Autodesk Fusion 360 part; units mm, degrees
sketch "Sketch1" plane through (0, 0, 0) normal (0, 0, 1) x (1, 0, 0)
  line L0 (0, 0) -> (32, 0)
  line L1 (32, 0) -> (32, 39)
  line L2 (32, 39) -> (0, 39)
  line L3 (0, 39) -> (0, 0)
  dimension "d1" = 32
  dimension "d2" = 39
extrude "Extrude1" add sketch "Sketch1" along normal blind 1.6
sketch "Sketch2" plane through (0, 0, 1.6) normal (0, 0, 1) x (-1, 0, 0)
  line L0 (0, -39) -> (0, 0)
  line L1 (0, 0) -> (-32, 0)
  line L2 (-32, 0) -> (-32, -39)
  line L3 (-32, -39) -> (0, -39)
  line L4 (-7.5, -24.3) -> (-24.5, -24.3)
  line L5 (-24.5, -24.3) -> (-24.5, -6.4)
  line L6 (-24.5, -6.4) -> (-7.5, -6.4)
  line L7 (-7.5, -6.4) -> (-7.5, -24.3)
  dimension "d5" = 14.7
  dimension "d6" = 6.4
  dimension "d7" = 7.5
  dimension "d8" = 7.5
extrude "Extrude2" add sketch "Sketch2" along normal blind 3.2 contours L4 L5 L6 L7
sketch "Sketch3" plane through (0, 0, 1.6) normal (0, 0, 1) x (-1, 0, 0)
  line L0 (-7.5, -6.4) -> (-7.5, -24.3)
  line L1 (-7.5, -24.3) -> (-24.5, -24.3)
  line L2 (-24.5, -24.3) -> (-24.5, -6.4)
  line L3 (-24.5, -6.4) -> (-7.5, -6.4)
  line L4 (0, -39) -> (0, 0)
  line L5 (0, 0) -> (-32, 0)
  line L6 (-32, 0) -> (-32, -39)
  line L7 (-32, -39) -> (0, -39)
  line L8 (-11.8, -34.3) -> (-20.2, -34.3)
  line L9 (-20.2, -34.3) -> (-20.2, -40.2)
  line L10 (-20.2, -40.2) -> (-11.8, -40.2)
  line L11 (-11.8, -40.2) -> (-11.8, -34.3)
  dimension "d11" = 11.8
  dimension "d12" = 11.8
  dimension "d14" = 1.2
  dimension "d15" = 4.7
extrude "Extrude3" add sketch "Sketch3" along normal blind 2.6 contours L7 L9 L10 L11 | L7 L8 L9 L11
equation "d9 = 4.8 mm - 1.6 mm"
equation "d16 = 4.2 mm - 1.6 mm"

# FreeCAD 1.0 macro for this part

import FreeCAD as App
import Part
import Sketcher

V = App.Vector


def add_polygon(sketch, points):
    """Adds a closed chain of lines whose ends are joined by coincident constraints."""
    first, n = sketch.GeometryCount, len(points)
    for a, b in zip(points, points[1:] + points[:1]):
        sketch.addGeometry(Part.LineSegment(App.Vector(*a, 0), App.Vector(*b, 0)), False)
    for i in range(n):
        sketch.addConstraint(Sketcher.Constraint("Coincident", first + i, 2, first + (i + 1) % n, 1))

doc = App.newDocument("Part")
body = doc.addObject("PartDesign::Body", "Body")

# Sketch on XY plane
sketch1 = doc.addObject("Sketcher::SketchObject", "Sketch")
body.addObject(sketch1)
sketch1.AttachmentSupport = (doc.XY_Plane, [""])
sketch1.MapMode = "FlatFace"
add_polygon(sketch1, [(0, 39), (0, 0), (32, 0), (32, 39)])  # lines 0-3
sketch1.addConstraint([
    Sketcher.Constraint("Vertical", 0),
    Sketcher.Constraint("Horizontal", 1),
    Sketcher.Constraint("Vertical", 2),
    Sketcher.Constraint("Horizontal", 3),
    Sketcher.Constraint("Coincident", 0, 2, -1, 1),
    Sketcher.Constraint("DistanceX", 1, 1, 1, 2, 32.0),
    Sketcher.Constraint("DistanceY", 0, 2, 0, 1, 39.0),
])
pad1 = doc.addObject("PartDesign::Pad", "Pad")
body.addObject(pad1)
pad1.Profile = sketch1
pad1.Length = 1.6

# Sketch on XY plane
sketch2 = doc.addObject("Sketcher::SketchObject", "Sketch001")
body.addObject(sketch2)
sketch2.AttachmentSupport = (doc.XY_Plane, [""])
sketch2.MapMode = "FlatFace"
sketch2.AttachmentOffset = App.Placement(V(0, 0, 1.6), App.Rotation())
add_polygon(sketch2, [(24, 24), (8, 24), (8, 6), (24, 6)])  # lines 0-3
sketch2.addConstraint([
    Sketcher.Constraint("Horizontal", 0),
    Sketcher.Constraint("Vertical", 1),
    Sketcher.Constraint("Horizontal", 2),
    Sketcher.Constraint("Vertical", 3),
    Sketcher.Constraint("DistanceX", -1, 1, 0, 2, 7.5),
    Sketcher.Constraint("DistanceY", -1, 1, 1, 2, 6.4),
    Sketcher.Constraint("DistanceX", 0, 2, 0, 1, 17.0),
    Sketcher.Constraint("DistanceY", 1, 2, 1, 1, 17.9),
])
pad2 = doc.addObject("PartDesign::Pad", "Pad001")
body.addObject(pad2)
pad2.Profile = sketch2
pad2.Length = 3.2

# Sketch on XY plane
sketch3 = doc.addObject("Sketcher::SketchObject", "Sketch002")
body.addObject(sketch3)
sketch3.AttachmentSupport = (doc.XY_Plane, [""])
sketch3.MapMode = "FlatFace"
sketch3.AttachmentOffset = App.Placement(V(0, 0, 1.6), App.Rotation())
add_polygon(sketch3, [(12, 40), (12, 34), (20, 34), (20, 40)])  # lines 0-3
sketch3.addConstraint([
    Sketcher.Constraint("Vertical", 0),
    Sketcher.Constraint("Horizontal", 1),
    Sketcher.Constraint("Vertical", 2),
    Sketcher.Constraint("Horizontal", 3),
    Sketcher.Constraint("DistanceX", -1, 1, 0, 2, 11.8),
    Sketcher.Constraint("DistanceX", 1, 1, 1, 2, 8.4),
    Sketcher.Constraint("DistanceY", 0, 2, 0, 1, 5.9),
    Sketcher.Constraint("DistanceY", -1, 1, 0, 2, 34.3),
])
pad3 = doc.addObject("PartDesign::Pad", "Pad002")
body.addObject(pad3)
pad3.Profile = sketch3
pad3.Length = 2.6

doc.recompute()
